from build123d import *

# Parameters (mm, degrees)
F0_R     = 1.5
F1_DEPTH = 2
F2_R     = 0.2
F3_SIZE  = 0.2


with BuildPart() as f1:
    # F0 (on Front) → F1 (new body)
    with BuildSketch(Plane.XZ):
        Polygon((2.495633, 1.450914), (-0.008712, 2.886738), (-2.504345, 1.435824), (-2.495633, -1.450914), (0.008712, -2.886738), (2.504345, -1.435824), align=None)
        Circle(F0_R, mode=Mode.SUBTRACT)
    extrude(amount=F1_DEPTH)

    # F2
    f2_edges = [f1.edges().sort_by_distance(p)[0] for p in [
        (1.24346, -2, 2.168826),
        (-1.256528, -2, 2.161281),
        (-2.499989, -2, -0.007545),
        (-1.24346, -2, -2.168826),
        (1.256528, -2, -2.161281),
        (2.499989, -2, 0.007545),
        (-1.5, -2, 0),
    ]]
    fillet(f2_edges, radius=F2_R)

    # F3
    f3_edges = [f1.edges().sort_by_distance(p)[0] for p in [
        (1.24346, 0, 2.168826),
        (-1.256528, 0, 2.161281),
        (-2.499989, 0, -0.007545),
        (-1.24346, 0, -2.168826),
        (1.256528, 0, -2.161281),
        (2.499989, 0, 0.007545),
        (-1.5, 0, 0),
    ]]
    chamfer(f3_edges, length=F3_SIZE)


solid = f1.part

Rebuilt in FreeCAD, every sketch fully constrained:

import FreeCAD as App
import Part
import Sketcher


def edges_at(feature, points):
    """Names of the edges that pass closest to the given points."""
    edges = feature.Shape.Edges
    near = lambda p: min(range(len(edges)), key=lambda i: edges[i].distToShape(Part.Vertex(*p))[0])
    return sorted({f"Edge{near(p) + 1}" for p in points})


def add_polygon(sketch, points):
    """Adds a closed chain of lines whose ends are joined by coincident constraints."""
    first, n = sketch.GeometryCount, len(points)
    for a, b in zip(points, points[1:] + points[:1]):
        sketch.addGeometry(Part.LineSegment(App.Vector(*a, 0), App.Vector(*b, 0)), False)
    for i in range(n):
        sketch.addConstraint(Sketcher.Constraint("Coincident", first + i, 2, first + (i + 1) % n, 1))

doc = App.newDocument("Part")
params = doc.addObject("Spreadsheet::Sheet", "Params")
for row, (alias, value) in enumerate([
    ("sketch1_diameter", "3 mm"),
    ("pad1_length", "2 mm"),
    ("fillet_radius", "0.2 mm"),
    ("chamfer_size", "0.2 mm"),
], start=1):
    params.set(f"A{row}", alias)
    params.set(f"B{row}", "=" + value)
    params.setAlias(f"B{row}", alias)

body = doc.addObject("PartDesign::Body", "Body")

# Sketch on XZ plane
sketch1 = doc.addObject("Sketcher::SketchObject", "Sketch")
body.addObject(sketch1)
sketch1.AttachmentSupport = (doc.XZ_Plane, [""])
sketch1.MapMode = "FlatFace"
add_polygon(sketch1, [(2.495633, 1.450914), (-0.008712, 2.886738), (-2.504345, 1.435824), (-2.495633, -1.450914), (0.008712, -2.886738), (2.504345, -1.435824)])  # lines 0-5
sketch1.addGeometry(Part.Circle(App.Vector(0, 0, 0), App.Vector(0, 0, 1), 1.5), False)  # 6
sketch1.addConstraint([
    Sketcher.Constraint("Coincident", 6, 3, -1, 1),
    Sketcher.Constraint("Symmetric", 0, 2, 3, 2, -1, 1),
    Sketcher.Constraint("Symmetric", 1, 2, 4, 2, -1, 1),
    Sketcher.Constraint("Symmetric", 2, 2, 5, 2, -1, 1),
    Sketcher.Constraint("Equal", 0, 1),
    Sketcher.Constraint("Equal", 1, 2),
    Sketcher.Constraint("Diameter", 6, 3.0),
    Sketcher.Constraint("Distance", 0, 2.886752),
    Sketcher.Constraint("DistanceX", 0, 2, -1, 1, 0.008712),
    Sketcher.Constraint("DistanceX", 1, 2, 2, 2, 0.008712),
    Sketcher.Constraint("DistanceX", 2, 2, 0, 2, 2.486921),
])
sketch1.setExpression("Constraints[12]", "Params.sketch1_diameter")
pad1 = doc.addObject("PartDesign::Pad", "Pad")
body.addObject(pad1)
pad1.Profile = sketch1
pad1.setExpression("Length", "Params.pad1_length")
doc.recompute()

fillet = doc.addObject("PartDesign::Fillet", "Fillet")
body.addObject(fillet)
fillet.Base = (pad1, edges_at(pad1, [
    (1.243, -2, 2.169),
    (-1.257, -2, 2.161),
    (-2.5, -2, -0.008),
    (-1.243, -2, -2.169),
    (1.257, -2, -2.161),
    (2.5, -2, 0.008),
    (-1.5, -2, 0),
]))
fillet.setExpression("Radius", "Params.fillet_radius")
doc.recompute()

chamfer = doc.addObject("PartDesign::Chamfer", "Chamfer")
body.addObject(chamfer)
chamfer.Base = (fillet, edges_at(fillet, [
    (1.243, 0, 2.169),
    (-1.257, 0, 2.161),
    (-2.5, 0, -0.008),
    (-1.243, 0, -2.169),
    (1.257, 0, -2.161),
    (2.5, 0, 0.008),
    (-1.5, 0, 0),
]))
chamfer.setExpression("Size", "Params.chamfer_size")

doc.recompute()
